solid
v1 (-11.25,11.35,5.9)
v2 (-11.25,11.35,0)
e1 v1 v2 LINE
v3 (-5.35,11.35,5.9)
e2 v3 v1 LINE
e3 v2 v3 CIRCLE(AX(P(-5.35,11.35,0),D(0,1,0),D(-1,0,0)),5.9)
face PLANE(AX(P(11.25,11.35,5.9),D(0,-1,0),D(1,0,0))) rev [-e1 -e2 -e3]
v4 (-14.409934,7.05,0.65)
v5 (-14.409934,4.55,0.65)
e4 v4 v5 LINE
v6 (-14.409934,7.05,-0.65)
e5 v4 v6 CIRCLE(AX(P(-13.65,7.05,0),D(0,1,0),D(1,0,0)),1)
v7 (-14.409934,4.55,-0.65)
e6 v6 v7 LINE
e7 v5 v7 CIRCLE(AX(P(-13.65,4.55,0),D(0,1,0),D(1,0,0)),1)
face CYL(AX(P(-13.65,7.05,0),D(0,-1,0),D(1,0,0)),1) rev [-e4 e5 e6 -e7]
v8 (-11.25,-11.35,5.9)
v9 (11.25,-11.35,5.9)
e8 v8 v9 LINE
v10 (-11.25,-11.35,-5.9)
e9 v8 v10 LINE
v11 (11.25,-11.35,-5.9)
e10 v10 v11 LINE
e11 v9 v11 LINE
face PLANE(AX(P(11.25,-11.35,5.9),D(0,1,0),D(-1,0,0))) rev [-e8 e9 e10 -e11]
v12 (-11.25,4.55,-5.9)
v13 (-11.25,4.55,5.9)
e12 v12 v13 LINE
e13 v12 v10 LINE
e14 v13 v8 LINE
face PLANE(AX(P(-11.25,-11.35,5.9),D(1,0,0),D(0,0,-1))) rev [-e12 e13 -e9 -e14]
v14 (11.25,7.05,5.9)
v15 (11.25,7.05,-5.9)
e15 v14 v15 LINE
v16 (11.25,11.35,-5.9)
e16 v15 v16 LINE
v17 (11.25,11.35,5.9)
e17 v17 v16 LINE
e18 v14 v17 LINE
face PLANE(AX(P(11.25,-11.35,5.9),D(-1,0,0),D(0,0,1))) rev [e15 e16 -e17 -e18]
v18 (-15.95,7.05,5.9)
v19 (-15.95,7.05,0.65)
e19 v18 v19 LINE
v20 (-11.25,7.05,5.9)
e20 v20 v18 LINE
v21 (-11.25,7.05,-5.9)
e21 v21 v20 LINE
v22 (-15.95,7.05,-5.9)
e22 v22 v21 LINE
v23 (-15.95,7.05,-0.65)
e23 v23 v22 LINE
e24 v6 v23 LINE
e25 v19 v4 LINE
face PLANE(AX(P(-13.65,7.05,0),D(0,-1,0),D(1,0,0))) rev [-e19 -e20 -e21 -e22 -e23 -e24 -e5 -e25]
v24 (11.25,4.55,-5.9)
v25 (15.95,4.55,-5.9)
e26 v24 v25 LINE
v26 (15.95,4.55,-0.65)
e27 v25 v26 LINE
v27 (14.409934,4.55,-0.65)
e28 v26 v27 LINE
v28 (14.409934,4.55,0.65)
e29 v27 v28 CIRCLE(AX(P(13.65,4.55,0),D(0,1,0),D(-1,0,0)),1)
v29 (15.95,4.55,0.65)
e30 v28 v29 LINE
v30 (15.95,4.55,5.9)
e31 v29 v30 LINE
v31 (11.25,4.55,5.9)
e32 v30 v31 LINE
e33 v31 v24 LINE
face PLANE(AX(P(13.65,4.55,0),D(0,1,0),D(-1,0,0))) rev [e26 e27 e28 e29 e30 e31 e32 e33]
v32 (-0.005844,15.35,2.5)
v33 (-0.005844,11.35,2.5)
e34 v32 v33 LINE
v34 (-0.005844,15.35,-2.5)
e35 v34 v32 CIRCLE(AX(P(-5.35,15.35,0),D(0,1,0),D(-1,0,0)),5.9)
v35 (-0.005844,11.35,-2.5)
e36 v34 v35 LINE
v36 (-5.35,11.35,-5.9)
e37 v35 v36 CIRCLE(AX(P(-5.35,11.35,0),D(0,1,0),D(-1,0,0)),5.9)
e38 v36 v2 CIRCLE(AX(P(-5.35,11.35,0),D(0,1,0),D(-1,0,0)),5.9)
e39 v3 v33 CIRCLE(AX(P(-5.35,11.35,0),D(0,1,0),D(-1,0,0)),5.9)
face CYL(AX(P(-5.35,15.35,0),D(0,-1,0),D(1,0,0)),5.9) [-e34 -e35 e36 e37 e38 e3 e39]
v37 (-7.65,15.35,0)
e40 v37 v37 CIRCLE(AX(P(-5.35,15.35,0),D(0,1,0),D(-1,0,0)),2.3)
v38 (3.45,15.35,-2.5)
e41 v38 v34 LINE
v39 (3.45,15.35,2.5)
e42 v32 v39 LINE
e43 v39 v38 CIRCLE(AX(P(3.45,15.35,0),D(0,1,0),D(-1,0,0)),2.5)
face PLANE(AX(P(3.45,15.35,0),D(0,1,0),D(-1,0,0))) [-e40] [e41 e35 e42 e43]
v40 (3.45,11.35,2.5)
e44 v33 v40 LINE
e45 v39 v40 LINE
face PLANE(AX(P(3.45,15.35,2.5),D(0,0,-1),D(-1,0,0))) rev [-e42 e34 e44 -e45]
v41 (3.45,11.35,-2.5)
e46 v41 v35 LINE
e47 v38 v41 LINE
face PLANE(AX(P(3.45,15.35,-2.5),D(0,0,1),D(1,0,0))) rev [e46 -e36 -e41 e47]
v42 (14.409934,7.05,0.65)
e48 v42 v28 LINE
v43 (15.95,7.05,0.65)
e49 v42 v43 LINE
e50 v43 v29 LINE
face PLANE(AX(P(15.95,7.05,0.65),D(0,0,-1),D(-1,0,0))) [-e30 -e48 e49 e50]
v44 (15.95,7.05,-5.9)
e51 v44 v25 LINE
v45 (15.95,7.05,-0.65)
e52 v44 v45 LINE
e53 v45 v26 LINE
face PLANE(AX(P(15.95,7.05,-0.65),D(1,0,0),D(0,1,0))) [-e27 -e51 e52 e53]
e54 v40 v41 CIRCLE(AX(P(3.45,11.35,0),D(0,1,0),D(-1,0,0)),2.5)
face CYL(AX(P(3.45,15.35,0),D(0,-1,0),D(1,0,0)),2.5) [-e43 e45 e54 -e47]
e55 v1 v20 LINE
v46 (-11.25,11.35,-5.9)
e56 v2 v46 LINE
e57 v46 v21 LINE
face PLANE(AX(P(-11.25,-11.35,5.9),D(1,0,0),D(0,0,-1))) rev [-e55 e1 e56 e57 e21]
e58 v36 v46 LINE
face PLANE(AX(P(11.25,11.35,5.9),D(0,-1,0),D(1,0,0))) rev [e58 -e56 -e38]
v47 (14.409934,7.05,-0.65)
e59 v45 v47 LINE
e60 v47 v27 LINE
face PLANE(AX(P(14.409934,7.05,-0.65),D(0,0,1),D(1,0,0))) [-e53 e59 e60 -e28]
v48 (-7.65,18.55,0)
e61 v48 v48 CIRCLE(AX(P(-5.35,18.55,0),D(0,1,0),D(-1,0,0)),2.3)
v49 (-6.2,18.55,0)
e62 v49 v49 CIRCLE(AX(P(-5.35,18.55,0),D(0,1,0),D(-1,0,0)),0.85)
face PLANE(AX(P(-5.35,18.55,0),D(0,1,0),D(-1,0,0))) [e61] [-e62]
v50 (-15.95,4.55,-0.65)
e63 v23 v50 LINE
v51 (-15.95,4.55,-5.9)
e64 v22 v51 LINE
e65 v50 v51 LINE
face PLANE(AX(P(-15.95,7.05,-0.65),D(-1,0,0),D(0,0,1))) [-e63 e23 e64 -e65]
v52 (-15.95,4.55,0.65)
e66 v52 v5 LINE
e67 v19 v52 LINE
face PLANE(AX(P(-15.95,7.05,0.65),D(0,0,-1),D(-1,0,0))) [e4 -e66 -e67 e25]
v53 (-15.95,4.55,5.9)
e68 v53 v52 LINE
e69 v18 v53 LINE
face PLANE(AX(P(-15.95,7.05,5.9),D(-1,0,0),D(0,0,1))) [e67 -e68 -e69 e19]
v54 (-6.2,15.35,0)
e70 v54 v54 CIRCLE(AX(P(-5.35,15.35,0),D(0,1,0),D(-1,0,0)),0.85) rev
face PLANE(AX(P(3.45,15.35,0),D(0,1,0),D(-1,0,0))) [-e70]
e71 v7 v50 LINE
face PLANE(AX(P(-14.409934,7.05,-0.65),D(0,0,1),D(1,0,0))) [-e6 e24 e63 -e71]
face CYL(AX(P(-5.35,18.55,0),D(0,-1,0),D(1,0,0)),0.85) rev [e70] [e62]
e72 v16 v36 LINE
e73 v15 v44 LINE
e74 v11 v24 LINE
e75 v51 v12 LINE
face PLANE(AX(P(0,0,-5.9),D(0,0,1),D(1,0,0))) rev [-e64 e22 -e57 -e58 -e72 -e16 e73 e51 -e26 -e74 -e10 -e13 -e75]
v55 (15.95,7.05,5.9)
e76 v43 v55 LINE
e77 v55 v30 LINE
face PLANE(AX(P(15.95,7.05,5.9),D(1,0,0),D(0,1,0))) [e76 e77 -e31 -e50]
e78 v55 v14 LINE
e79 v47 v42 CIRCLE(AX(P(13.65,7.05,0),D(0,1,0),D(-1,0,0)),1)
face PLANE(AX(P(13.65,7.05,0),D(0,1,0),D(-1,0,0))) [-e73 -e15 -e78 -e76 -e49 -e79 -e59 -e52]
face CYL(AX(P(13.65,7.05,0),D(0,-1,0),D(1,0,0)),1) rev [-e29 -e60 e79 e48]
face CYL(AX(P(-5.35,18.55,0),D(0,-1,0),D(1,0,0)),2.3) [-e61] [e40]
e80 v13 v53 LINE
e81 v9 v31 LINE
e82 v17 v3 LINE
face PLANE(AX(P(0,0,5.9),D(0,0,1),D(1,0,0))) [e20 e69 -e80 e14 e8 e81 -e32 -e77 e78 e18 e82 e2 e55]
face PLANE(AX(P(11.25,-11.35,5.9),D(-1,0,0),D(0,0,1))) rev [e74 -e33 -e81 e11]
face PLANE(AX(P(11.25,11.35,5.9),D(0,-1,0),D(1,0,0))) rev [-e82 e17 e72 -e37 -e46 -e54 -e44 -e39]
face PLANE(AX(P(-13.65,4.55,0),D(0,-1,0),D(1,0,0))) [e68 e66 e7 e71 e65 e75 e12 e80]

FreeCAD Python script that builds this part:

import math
import FreeCAD as App
import Part
import Sketcher

doc = App.newDocument("Part")
body = doc.addObject("PartDesign::Body", "Body")

# Sketch on XY plane
sketch1 = doc.addObject("Sketcher::SketchObject", "Sketch")
body.addObject(sketch1)
sketch1.AttachmentSupport = (doc.XY_Plane, [""])
sketch1.MapMode = "FlatFace"
sketch1.addGeometry([
    Part.LineSegment(App.Vector(-11.25, 11.35, 0), App.Vector(-11.25, -11.35, 0)),
    Part.LineSegment(App.Vector(-11.25, -11.35, 0), App.Vector(11.25, -11.35, 0)),
    Part.LineSegment(App.Vector(11.25, -11.35, 0), App.Vector(11.25, 11.35, 0)),
    Part.LineSegment(App.Vector(11.25, 11.35, 0), App.Vector(-11.25, 11.35, 0)),
], False)
sketch1.addConstraint([
    Sketcher.Constraint("Coincident", 0, 2, 1, 1),
    Sketcher.Constraint("Coincident", 1, 2, 2, 1),
    Sketcher.Constraint("Coincident", 2, 2, 3, 1),
    Sketcher.Constraint("Coincident", 3, 2, 0, 1),
    Sketcher.Constraint("Vertical", 0),
    Sketcher.Constraint("Horizontal", 1),
    Sketcher.Constraint("Vertical", 2),
    Sketcher.Constraint("Horizontal", 3),
    Sketcher.Constraint("Symmetric", 0, 2, 2, 2, -1, 1),
    Sketcher.Constraint("DistanceX", 1, 1, 1, 2, 22.5),
    Sketcher.Constraint("DistanceY", 0, 2, 0, 1, 22.7),
])
pad1 = doc.addObject("PartDesign::Pad", "Pad")
body.addObject(pad1)
pad1.Profile = sketch1
pad1.Length = 11.8
pad1.Midplane = True

# Sketch on XZ plane
sketch2 = doc.addObject("Sketcher::SketchObject", "Sketch001")
body.addObject(sketch2)
sketch2.AttachmentSupport = (doc.XZ_Plane, [""])
sketch2.MapMode = "FlatFace"
sketch2.AttachmentOffset = App.Placement(App.Vector(0, 0, -4.55), App.Rotation())
sketch2.addGeometry([
    Part.LineSegment(App.Vector(-14.409934, -0.65, 0), App.Vector(-15.95, -0.65, 0)),  # 0
    Part.LineSegment(App.Vector(-15.95, -0.65, 0), App.Vector(-15.95, -5.9, 0)),  # 1
    Part.LineSegment(App.Vector(-15.95, -5.9, 0), App.Vector(-11.25, -5.9, 0)),  # 2
    Part.LineSegment(App.Vector(-11.25, -5.9, 0), App.Vector(-11.25, 5.9, 0)),  # 3
    Part.LineSegment(App.Vector(-11.25, 5.9, 0), App.Vector(-15.95, 5.9, 0)),  # 4
    Part.LineSegment(App.Vector(-15.95, 5.9, 0), App.Vector(-15.95, 0.65, 0)),  # 5
    Part.LineSegment(App.Vector(-15.95, 0.65, 0), App.Vector(-14.409934, 0.65, 0)),  # 6
    Part.ArcOfCircle(Part.Circle(App.Vector(-13.65, 0, 0), App.Vector(0, 0, 1), 1), math.radians(-139.458398), math.radians(139.458398)),  # 7
    Part.LineSegment(App.Vector(15.95, 5.9, 0), App.Vector(11.25, 5.9, 0)),  # 8
    Part.LineSegment(App.Vector(11.25, 5.9, 0), App.Vector(11.25, -5.9, 0)),  # 9
    Part.LineSegment(App.Vector(11.25, -5.9, 0), App.Vector(15.95, -5.9, 0)),  # 10
    Part.LineSegment(App.Vector(15.95, -5.9, 0), App.Vector(15.95, -0.65, 0)),  # 11
    Part.LineSegment(App.Vector(15.95, -0.65, 0), App.Vector(14.409934, -0.65, 0)),  # 12
    Part.ArcOfCircle(Part.Circle(App.Vector(13.65, 0, 0), App.Vector(0, 0, 1), 1), math.radians(40.541602), math.radians(319.458398)),  # 13
    Part.LineSegment(App.Vector(14.409934, 0.65, 0), App.Vector(15.95, 0.65, 0)),  # 14
    Part.LineSegment(App.Vector(15.95, 0.65, 0), App.Vector(15.95, 5.9, 0)),  # 15
], False)
sketch2.addConstraint([
    Sketcher.Constraint("Coincident", 0, 2, 1, 1),
    Sketcher.Constraint("Coincident", 1, 2, 2, 1),
    Sketcher.Constraint("Coincident", 2, 2, 3, 1),
    Sketcher.Constraint("Coincident", 3, 2, 4, 1),
    Sketcher.Constraint("Coincident", 4, 2, 5, 1),
    Sketcher.Constraint("Coincident", 5, 2, 6, 1),
    Sketcher.Constraint("Coincident", 6, 2, 7, 2),
    Sketcher.Constraint("Coincident", 7, 1, 0, 1),
    Sketcher.Constraint("Coincident", 8, 2, 9, 1),
    Sketcher.Constraint("Coincident", 9, 2, 10, 1),
    Sketcher.Constraint("Coincident", 10, 2, 11, 1),
    Sketcher.Constraint("Coincident", 11, 2, 12, 1),
    Sketcher.Constraint("Coincident", 12, 2, 13, 2),
    Sketcher.Constraint("Coincident", 13, 1, 14, 1),
    Sketcher.Constraint("Coincident", 14, 2, 15, 1),
    Sketcher.Constraint("Coincident", 15, 2, 8, 1),
    Sketcher.Constraint("Horizontal", 0),
    Sketcher.Constraint("Vertical", 1),
    Sketcher.Constraint("Horizontal", 2),
    Sketcher.Constraint("Vertical", 3),
    Sketcher.Constraint("Horizontal", 4),
    Sketcher.Constraint("Vertical", 5),
    Sketcher.Constraint("Horizontal", 6),
    Sketcher.Constraint("Horizontal", 8),
    Sketcher.Constraint("Vertical", 9),
    Sketcher.Constraint("Horizontal", 10),
    Sketcher.Constraint("Vertical", 11),
    Sketcher.Constraint("Horizontal", 12),
    Sketcher.Constraint("Horizontal", 14),
    Sketcher.Constraint("Vertical", 15),
    Sketcher.Constraint("Equal", 7, 13),
    Sketcher.Constraint("Symmetric", 7, 3, 13, 3, -1, 1),
    Sketcher.Constraint("Symmetric", 2, 2, 8, 2, -1, 1),
    Sketcher.Constraint("Symmetric", 4, 2, 10, 2, -1, 1),
    Sketcher.Constraint("Symmetric", 0, 2, 14, 2, -1, 1),
    Sketcher.Constraint("Symmetric", 1, 2, 10, 2, -2),
    Sketcher.Constraint("Symmetric", 7, 1, 12, 2, -2),
    Sketcher.Constraint("Horizontal", 6, 2, 13, 1),
    Sketcher.Constraint("Radius", 7, 1.0),
    Sketcher.Constraint("DistanceX", 2, 1, 2, 2, 4.7),
    Sketcher.Constraint("DistanceY", 3, 1, 3, 2, 11.8),
    Sketcher.Constraint("DistanceY", 1, 2, 1, 1, 5.25),
    Sketcher.Constraint("DistanceX", 7, 3, 13, 3, 27.3),
    Sketcher.Constraint("DistanceX", 0, 2, 7, 3, 2.3),
])
pad2 = doc.addObject("PartDesign::Pad", "Pad001")
body.addObject(pad2)
pad2.Profile = sketch2
pad2.Length = 2.5
pad2.Reversed = True

# Sketch on XZ plane
sketch3 = doc.addObject("Sketcher::SketchObject", "Sketch002")
body.addObject(sketch3)
sketch3.AttachmentSupport = (doc.XZ_Plane, [""])
sketch3.MapMode = "FlatFace"
sketch3.AttachmentOffset = App.Placement(App.Vector(0, 0, -11.35), App.Rotation())
sketch3.addGeometry([
    Part.LineSegment(App.Vector(3.45, -2.5, 0), App.Vector(-0.005844, -2.5, 0)),
    Part.ArcOfCircle(Part.Circle(App.Vector(-5.35, 0, 0), App.Vector(0, 0, 1), 5.9), math.radians(25.070228), math.radians(334.929772)),
    Part.LineSegment(App.Vector(-0.005844, 2.5, 0), App.Vector(3.45, 2.5, 0)),
    Part.ArcOfCircle(Part.Circle(App.Vector(3.45, 0, 0), App.Vector(0, 0, 1), 2.5), math.radians(-90), math.radians(90)),
], False)
sketch3.addConstraint([
    Sketcher.Constraint("Coincident", 0, 2, 1, 2),
    Sketcher.Constraint("Coincident", 1, 1, 2, 1),
    Sketcher.Constraint("Tangent", 2, 2, 3, 2),
    Sketcher.Constraint("Tangent", 3, 1, 0, 1),
    Sketcher.Constraint("Horizontal", 0),
    Sketcher.Constraint("Horizontal", 2),
    Sketcher.Constraint("Symmetric", 0, 2, 1, 1, -1),
    Sketcher.Constraint("Radius", 1, 5.9),
    Sketcher.Constraint("Radius", 3, 2.5),
    Sketcher.Constraint("DistanceX", 1, 3, 3, 3, 8.8),
    Sketcher.Constraint("DistanceX", 1, 3, -1, 1, 5.35),
])
pad3 = doc.addObject("PartDesign::Pad", "Pad002")
body.addObject(pad3)
pad3.Profile = sketch3
pad3.Length = 4
pad3.Reversed = True

# Sketch on XZ plane
sketch4 = doc.addObject("Sketcher::SketchObject", "Sketch003")
body.addObject(sketch4)
sketch4.AttachmentSupport = (doc.XZ_Plane, [""])
sketch4.MapMode = "FlatFace"
sketch4.AttachmentOffset = App.Placement(App.Vector(0, 0, -15.35), App.Rotation())
sketch4.addGeometry([
    Part.Circle(App.Vector(-5.35, 0, 0), App.Vector(0, 0, 1), 2.3),
    Part.Circle(App.Vector(-5.35, 0, 0), App.Vector(0, 0, 1), 0.85),
], False)
sketch4.addConstraint([
    Sketcher.Constraint("Coincident", 1, 3, 0, 3),
    Sketcher.Constraint("PointOnObject", 0, 3, -1),
    Sketcher.Constraint("Diameter", 0, 4.6),
    Sketcher.Constraint("Diameter", 1, 1.7),
    Sketcher.Constraint("DistanceX", 0, 3, -1, 1, 5.35),
])
pad4 = doc.addObject("PartDesign::Pad", "Pad003")
body.addObject(pad4)
pad4.Profile = sketch4
pad4.Length = 3.2
pad4.Reversed = True

doc.recompute()
